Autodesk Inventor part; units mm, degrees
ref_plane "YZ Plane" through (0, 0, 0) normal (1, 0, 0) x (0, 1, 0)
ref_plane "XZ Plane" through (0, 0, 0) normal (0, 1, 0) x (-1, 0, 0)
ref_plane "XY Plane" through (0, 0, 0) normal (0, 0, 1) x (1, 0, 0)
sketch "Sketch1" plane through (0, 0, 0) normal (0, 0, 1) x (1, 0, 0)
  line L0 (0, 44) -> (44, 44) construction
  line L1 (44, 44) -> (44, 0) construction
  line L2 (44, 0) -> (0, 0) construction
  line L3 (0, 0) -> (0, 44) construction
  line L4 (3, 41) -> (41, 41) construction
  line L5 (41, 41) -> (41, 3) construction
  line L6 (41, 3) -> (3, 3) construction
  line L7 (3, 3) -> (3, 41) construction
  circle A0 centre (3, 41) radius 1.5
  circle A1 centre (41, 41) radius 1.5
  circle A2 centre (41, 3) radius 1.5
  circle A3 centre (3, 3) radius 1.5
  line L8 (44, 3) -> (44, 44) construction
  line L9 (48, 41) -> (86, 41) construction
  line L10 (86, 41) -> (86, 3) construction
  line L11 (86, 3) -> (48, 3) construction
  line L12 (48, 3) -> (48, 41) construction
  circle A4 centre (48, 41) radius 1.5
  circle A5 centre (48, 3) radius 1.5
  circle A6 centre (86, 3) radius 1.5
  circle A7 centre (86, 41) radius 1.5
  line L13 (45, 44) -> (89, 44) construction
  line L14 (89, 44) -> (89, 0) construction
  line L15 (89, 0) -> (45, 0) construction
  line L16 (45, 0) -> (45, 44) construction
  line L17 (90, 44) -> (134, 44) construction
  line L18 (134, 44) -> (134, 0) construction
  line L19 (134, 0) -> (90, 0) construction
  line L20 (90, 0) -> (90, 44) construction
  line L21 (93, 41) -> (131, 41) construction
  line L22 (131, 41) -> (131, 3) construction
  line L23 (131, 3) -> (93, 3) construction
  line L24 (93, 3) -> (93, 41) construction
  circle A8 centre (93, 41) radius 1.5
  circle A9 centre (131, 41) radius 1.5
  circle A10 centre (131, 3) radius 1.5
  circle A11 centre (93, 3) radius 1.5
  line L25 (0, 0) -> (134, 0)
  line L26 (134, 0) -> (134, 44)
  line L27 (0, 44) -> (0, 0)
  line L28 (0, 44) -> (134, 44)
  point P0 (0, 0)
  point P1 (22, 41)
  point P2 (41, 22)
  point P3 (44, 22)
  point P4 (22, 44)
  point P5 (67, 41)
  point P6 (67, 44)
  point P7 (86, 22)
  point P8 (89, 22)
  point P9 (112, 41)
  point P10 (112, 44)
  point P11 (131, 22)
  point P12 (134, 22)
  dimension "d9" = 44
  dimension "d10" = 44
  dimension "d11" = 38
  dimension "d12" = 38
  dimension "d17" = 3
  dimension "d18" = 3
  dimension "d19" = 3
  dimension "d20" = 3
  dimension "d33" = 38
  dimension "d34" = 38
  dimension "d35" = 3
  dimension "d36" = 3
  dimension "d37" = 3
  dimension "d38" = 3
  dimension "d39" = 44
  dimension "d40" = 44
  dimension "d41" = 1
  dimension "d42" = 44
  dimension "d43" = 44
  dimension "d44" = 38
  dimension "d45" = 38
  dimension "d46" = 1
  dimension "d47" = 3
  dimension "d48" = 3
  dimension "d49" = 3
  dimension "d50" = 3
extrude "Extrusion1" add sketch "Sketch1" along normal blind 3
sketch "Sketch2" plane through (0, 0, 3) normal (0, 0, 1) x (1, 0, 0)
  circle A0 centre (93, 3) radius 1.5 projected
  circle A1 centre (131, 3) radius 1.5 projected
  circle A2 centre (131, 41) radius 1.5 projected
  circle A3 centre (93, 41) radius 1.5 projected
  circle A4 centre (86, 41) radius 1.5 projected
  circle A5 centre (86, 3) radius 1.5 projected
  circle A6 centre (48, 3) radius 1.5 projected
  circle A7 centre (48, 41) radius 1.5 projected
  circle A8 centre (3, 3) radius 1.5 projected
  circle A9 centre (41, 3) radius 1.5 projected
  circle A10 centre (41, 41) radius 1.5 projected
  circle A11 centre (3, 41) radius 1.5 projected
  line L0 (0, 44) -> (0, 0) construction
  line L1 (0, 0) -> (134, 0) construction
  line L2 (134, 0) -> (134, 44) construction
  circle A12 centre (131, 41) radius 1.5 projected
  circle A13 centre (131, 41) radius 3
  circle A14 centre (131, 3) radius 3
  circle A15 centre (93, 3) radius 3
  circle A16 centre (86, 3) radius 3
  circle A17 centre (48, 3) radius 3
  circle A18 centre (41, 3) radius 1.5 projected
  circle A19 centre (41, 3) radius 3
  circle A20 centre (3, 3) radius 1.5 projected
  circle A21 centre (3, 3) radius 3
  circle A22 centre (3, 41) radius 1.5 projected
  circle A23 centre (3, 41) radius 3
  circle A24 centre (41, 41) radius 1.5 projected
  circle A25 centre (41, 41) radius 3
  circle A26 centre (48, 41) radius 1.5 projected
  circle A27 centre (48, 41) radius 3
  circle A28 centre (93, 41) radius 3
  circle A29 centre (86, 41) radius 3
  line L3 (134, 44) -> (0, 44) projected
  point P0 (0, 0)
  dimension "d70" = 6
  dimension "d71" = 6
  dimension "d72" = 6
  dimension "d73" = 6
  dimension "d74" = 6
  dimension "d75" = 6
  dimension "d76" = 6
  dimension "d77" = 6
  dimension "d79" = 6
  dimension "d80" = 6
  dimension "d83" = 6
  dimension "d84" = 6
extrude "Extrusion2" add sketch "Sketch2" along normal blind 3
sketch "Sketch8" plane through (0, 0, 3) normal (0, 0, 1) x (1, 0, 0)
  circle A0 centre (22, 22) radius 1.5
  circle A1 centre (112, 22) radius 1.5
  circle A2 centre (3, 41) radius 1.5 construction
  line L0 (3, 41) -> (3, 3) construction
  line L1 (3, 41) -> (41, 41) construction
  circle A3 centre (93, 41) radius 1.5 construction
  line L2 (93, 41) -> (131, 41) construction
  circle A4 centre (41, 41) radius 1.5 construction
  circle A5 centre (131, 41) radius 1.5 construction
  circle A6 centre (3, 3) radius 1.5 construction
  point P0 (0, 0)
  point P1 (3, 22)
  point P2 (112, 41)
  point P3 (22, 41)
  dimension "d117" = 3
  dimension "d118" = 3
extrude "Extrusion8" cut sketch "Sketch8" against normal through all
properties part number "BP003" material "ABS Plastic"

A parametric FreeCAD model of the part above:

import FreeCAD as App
import Part
import Sketcher

V = App.Vector

doc = App.newDocument("Part")
body = doc.addObject("PartDesign::Body", "Body")

# Sketch on XY plane
sketch1 = body.newObject("Sketcher::SketchObject", "Sketch")
sketch1.AttachmentSupport = (doc.getObject("XY_Plane"), [""])
sketch1.MapMode = "FlatFace"
sketch1.addGeometry([
    Part.LineSegment(V(0, 44, 0), V(0, 0, 0)),  # 0
    Part.LineSegment(V(0, 0, 0), V(134, 0, 0)),  # 1
    Part.LineSegment(V(134, 0, 0), V(134, 44, 0)),  # 2
    Part.LineSegment(V(134, 44, 0), V(0, 44, 0)),  # 3
    Part.Circle(V(3, 3, 0), V(0, 0, 1), 1.5),  # 4
    Part.Circle(V(41, 3, 0), V(0, 0, 1), 1.5),  # 5
    Part.Circle(V(48, 3, 0), V(0, 0, 1), 1.5),  # 6
    Part.Circle(V(86, 3, 0), V(0, 0, 1), 1.5),  # 7
    Part.Circle(V(93, 3, 0), V(0, 0, 1), 1.5),  # 8
    Part.Circle(V(131, 3, 0), V(0, 0, 1), 1.5),  # 9
    Part.Circle(V(3, 41, 0), V(0, 0, 1), 1.5),  # 10
    Part.Circle(V(41, 41, 0), V(0, 0, 1), 1.5),  # 11
    Part.Circle(V(48, 41, 0), V(0, 0, 1), 1.5),  # 12
    Part.Circle(V(86, 41, 0), V(0, 0, 1), 1.5),  # 13
    Part.Circle(V(93, 41, 0), V(0, 0, 1), 1.5),  # 14
    Part.Circle(V(131, 41, 0), V(0, 0, 1), 1.5),  # 15
], False)
sketch1.addConstraint([
    Sketcher.Constraint("Coincident", 0, 2, 1, 1),
    Sketcher.Constraint("Coincident", 1, 2, 2, 1),
    Sketcher.Constraint("Coincident", 2, 2, 3, 1),
    Sketcher.Constraint("Coincident", 3, 2, 0, 1),
    Sketcher.Constraint("Vertical", 0),
    Sketcher.Constraint("Horizontal", 1),
    Sketcher.Constraint("Vertical", 2),
    Sketcher.Constraint("Horizontal", 3),
    Sketcher.Constraint("Coincident", 0, 2, -1, 1),
    Sketcher.Constraint("Equal", 4, 5),
    Sketcher.Constraint("Equal", 5, 6),
    Sketcher.Constraint("Equal", 6, 7),
    Sketcher.Constraint("Equal", 7, 8),
    Sketcher.Constraint("Equal", 8, 9),
    Sketcher.Constraint("Equal", 9, 10),
    Sketcher.Constraint("Equal", 10, 11),
    Sketcher.Constraint("Equal", 11, 12),
    Sketcher.Constraint("Equal", 12, 13),
    Sketcher.Constraint("Equal", 13, 14),
    Sketcher.Constraint("Equal", 14, 15),
    Sketcher.Constraint("Horizontal", 4, 3, 5, 3),
    Sketcher.Constraint("Horizontal", 5, 3, 6, 3),
    Sketcher.Constraint("Horizontal", 6, 3, 7, 3),
    Sketcher.Constraint("Horizontal", 7, 3, 8, 3),
    Sketcher.Constraint("Horizontal", 8, 3, 9, 3),
    Sketcher.Constraint("Horizontal", 10, 3, 11, 3),
    Sketcher.Constraint("Horizontal", 11, 3, 12, 3),
    Sketcher.Constraint("Horizontal", 12, 3, 13, 3),
    Sketcher.Constraint("Horizontal", 13, 3, 14, 3),
    Sketcher.Constraint("Horizontal", 14, 3, 15, 3),
    Sketcher.Constraint("Vertical", 4, 3, 10, 3),
    Sketcher.Constraint("Vertical", 5, 3, 11, 3),
    Sketcher.Constraint("Vertical", 6, 3, 12, 3),
    Sketcher.Constraint("Vertical", 7, 3, 13, 3),
    Sketcher.Constraint("Vertical", 8, 3, 14, 3),
    Sketcher.Constraint("Vertical", 9, 3, 15, 3),
    Sketcher.Constraint("Diameter", 4, 3.0),
    Sketcher.Constraint("DistanceY", 0, 2, 0, 1, 44.0),
    Sketcher.Constraint("DistanceX", -1, 1, 4, 3, 3.0),
    Sketcher.Constraint("DistanceY", -1, 1, 4, 3, 3.0),
    Sketcher.Constraint("DistanceX", 4, 3, 5, 3, 38.0),
    Sketcher.Constraint("DistanceX", 6, 3, 7, 3, 38.0),
    Sketcher.Constraint("DistanceX", 8, 3, 9, 3, 38.0),
    Sketcher.Constraint("DistanceY", 4, 3, 10, 3, 38.0),
    Sketcher.Constraint("DistanceX", 9, 3, 1, 2, 3.0),
    Sketcher.Constraint("DistanceX", 1, 1, 1, 2, 134.0),
    Sketcher.Constraint("DistanceX", -1, 1, 6, 3, 48.0),
])
pad1 = body.newObject("PartDesign::Pad", "Pad")
pad1.Profile = sketch1
pad1.Length = 3

# Sketch on XY plane
sketch2 = body.newObject("Sketcher::SketchObject", "Sketch001")
sketch2.AttachmentSupport = (doc.getObject("XY_Plane"), [""])
sketch2.MapMode = "FlatFace"
sketch2.AttachmentOffset = App.Placement(V(0, 0, 3), App.Rotation())
sketch2.addGeometry([
    Part.Circle(V(131, 41, 0), V(0, 0, 1), 3),  # 0
    Part.Circle(V(131, 41, 0), V(0, 0, 1), 1.5),  # 1
    Part.Circle(V(93, 41, 0), V(0, 0, 1), 3),  # 2
    Part.Circle(V(93, 41, 0), V(0, 0, 1), 1.5),  # 3
    Part.Circle(V(86, 41, 0), V(0, 0, 1), 3),  # 4
    Part.Circle(V(86, 41, 0), V(0, 0, 1), 1.5),  # 5
    Part.Circle(V(48, 41, 0), V(0, 0, 1), 3),  # 6
    Part.Circle(V(48, 41, 0), V(0, 0, 1), 1.5),  # 7
    Part.Circle(V(41, 41, 0), V(0, 0, 1), 3),  # 8
    Part.Circle(V(41, 41, 0), V(0, 0, 1), 1.5),  # 9
    Part.Circle(V(3, 41, 0), V(0, 0, 1), 3),  # 10
    Part.Circle(V(3, 41, 0), V(0, 0, 1), 1.5),  # 11
    Part.Circle(V(131, 3, 0), V(0, 0, 1), 3),  # 12
    Part.Circle(V(131, 3, 0), V(0, 0, 1), 1.5),  # 13
    Part.Circle(V(93, 3, 0), V(0, 0, 1), 3),  # 14
    Part.Circle(V(93, 3, 0), V(0, 0, 1), 1.5),  # 15
    Part.Circle(V(86, 3, 0), V(0, 0, 1), 3),  # 16
    Part.Circle(V(86, 3, 0), V(0, 0, 1), 1.5),  # 17
    Part.Circle(V(48, 3, 0), V(0, 0, 1), 3),  # 18
    Part.Circle(V(48, 3, 0), V(0, 0, 1), 1.5),  # 19
    Part.Circle(V(41, 3, 0), V(0, 0, 1), 3),  # 20
    Part.Circle(V(41, 3, 0), V(0, 0, 1), 1.5),  # 21
    Part.Circle(V(3, 3, 0), V(0, 0, 1), 3),  # 22
    Part.Circle(V(3, 3, 0), V(0, 0, 1), 1.5),  # 23
], False)
sketch2.addConstraint([
    Sketcher.Constraint("Coincident", 1, 3, 0, 3),
    Sketcher.Constraint("Coincident", 3, 3, 2, 3),
    Sketcher.Constraint("Coincident", 5, 3, 4, 3),
    Sketcher.Constraint("Coincident", 7, 3, 6, 3),
    Sketcher.Constraint("Coincident", 9, 3, 8, 3),
    Sketcher.Constraint("Coincident", 11, 3, 10, 3),
    Sketcher.Constraint("Coincident", 13, 3, 12, 3),
    Sketcher.Constraint("Coincident", 15, 3, 14, 3),
    Sketcher.Constraint("Coincident", 17, 3, 16, 3),
    Sketcher.Constraint("Coincident", 19, 3, 18, 3),
    Sketcher.Constraint("Coincident", 21, 3, 20, 3),
    Sketcher.Constraint("Coincident", 23, 3, 22, 3),
    Sketcher.Constraint("Equal", 0, 2),
    Sketcher.Constraint("Equal", 1, 3),
    Sketcher.Constraint("Equal", 2, 4),
    Sketcher.Constraint("Equal", 3, 5),
    Sketcher.Constraint("Equal", 4, 6),
    Sketcher.Constraint("Equal", 5, 7),
    Sketcher.Constraint("Equal", 6, 8),
    Sketcher.Constraint("Equal", 7, 9),
    Sketcher.Constraint("Equal", 8, 10),
    Sketcher.Constraint("Equal", 9, 11),
    Sketcher.Constraint("Equal", 10, 12),
    Sketcher.Constraint("Equal", 11, 13),
    Sketcher.Constraint("Equal", 12, 14),
    Sketcher.Constraint("Equal", 13, 15),
    Sketcher.Constraint("Equal", 14, 16),
    Sketcher.Constraint("Equal", 15, 17),
    Sketcher.Constraint("Equal", 16, 18),
    Sketcher.Constraint("Equal", 17, 19),
    Sketcher.Constraint("Equal", 18, 20),
    Sketcher.Constraint("Equal", 19, 21),
    Sketcher.Constraint("Equal", 20, 22),
    Sketcher.Constraint("Equal", 21, 23),
    Sketcher.Constraint("Horizontal", 1, 3, 2, 3),
    Sketcher.Constraint("Horizontal", 3, 3, 4, 3),
    Sketcher.Constraint("Horizontal", 5, 3, 6, 3),
    Sketcher.Constraint("Horizontal", 7, 3, 8, 3),
    Sketcher.Constraint("Horizontal", 9, 3, 10, 3),
    Sketcher.Constraint("Horizontal", 13, 3, 14, 3),
    Sketcher.Constraint("Horizontal", 15, 3, 16, 3),
    Sketcher.Constraint("Horizontal", 17, 3, 18, 3),
    Sketcher.Constraint("Horizontal", 19, 3, 20, 3),
    Sketcher.Constraint("Horizontal", 21, 3, 22, 3),
    Sketcher.Constraint("Vertical", 1, 3, 12, 3),
    Sketcher.Constraint("Vertical", 3, 3, 14, 3),
    Sketcher.Constraint("Vertical", 5, 3, 16, 3),
    Sketcher.Constraint("Vertical", 7, 3, 18, 3),
    Sketcher.Constraint("Vertical", 9, 3, 20, 3),
    Sketcher.Constraint("Vertical", 11, 3, 22, 3),
    Sketcher.Constraint("Diameter", 0, 6.0),
    Sketcher.Constraint("Diameter", 1, 3.0),
    Sketcher.Constraint("DistanceX", -1, 1, 0, 3, 131.0),
    Sketcher.Constraint("DistanceY", -1, 1, 0, 3, 41.0),
    Sketcher.Constraint("DistanceX", -1, 1, 2, 3, 93.0),
    Sketcher.Constraint("DistanceX", -1, 1, 4, 3, 86.0),
    Sketcher.Constraint("DistanceX", -1, 1, 6, 3, 48.0),
    Sketcher.Constraint("DistanceX", -1, 1, 8, 3, 41.0),
    Sketcher.Constraint("DistanceX", -1, 1, 10, 3, 3.0),
    Sketcher.Constraint("DistanceY", -1, 1, 12, 3, 3.0),
])
pad2 = body.newObject("PartDesign::Pad", "Pad001")
pad2.Profile = sketch2
pad2.Length = 3

# Sketch on XY plane
sketch3 = body.newObject("Sketcher::SketchObject", "Sketch002")
sketch3.AttachmentSupport = (doc.getObject("XY_Plane"), [""])
sketch3.MapMode = "FlatFace"
sketch3.AttachmentOffset = App.Placement(V(0, 0, 3), App.Rotation())
sketch3.addGeometry([
    Part.Circle(V(22, 22, 0), V(0, 0, 1), 1.5),
    Part.Circle(V(112, 22, 0), V(0, 0, 1), 1.5),
], False)
sketch3.addConstraint([
    Sketcher.Constraint("Equal", 0, 1),
    Sketcher.Constraint("Horizontal", 0, 3, 1, 3),
    Sketcher.Constraint("Diameter", 0, 3.0),
    Sketcher.Constraint("DistanceX", -1, 1, 0, 3, 22.0),
    Sketcher.Constraint("DistanceY", -1, 1, 0, 3, 22.0),
    Sketcher.Constraint("DistanceX", -1, 1, 1, 3, 112.0),
])
pocket1 = body.newObject("PartDesign::Pocket", "Pocket")
pocket1.Profile = sketch3
pocket1.Type = "ThroughAll"

doc.recompute()
